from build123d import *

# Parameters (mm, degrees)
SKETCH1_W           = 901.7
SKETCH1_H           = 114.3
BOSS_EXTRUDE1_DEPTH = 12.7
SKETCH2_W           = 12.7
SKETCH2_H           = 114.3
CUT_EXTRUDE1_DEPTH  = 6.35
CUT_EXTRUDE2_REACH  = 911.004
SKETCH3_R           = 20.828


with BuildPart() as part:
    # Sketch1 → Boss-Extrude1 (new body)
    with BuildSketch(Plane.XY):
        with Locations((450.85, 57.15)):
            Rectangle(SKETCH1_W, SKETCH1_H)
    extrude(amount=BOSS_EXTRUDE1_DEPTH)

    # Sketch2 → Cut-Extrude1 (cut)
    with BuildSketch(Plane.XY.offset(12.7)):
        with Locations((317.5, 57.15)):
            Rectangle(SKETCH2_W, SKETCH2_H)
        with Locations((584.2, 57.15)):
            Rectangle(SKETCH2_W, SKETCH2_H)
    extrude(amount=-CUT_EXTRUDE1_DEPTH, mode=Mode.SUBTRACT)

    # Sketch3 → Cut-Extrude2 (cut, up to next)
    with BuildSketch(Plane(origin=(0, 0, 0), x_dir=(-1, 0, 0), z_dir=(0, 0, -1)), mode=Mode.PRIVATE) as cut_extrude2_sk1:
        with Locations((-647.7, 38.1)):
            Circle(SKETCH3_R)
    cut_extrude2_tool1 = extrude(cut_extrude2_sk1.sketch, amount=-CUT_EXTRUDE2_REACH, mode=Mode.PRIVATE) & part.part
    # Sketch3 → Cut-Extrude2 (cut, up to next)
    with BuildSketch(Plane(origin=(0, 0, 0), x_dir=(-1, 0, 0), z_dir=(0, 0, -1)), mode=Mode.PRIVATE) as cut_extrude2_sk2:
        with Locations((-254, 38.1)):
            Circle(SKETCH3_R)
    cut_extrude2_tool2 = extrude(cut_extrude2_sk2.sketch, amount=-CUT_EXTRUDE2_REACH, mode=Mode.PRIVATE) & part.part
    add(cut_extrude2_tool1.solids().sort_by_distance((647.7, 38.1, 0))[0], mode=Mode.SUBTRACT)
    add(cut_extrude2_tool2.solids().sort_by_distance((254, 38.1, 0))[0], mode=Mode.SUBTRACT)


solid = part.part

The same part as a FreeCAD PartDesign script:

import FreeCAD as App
import Part
import Sketcher

V = App.Vector
Q = App.Units.Quantity

doc = App.newDocument("Part")
params = doc.addObject("Spreadsheet::Sheet", "Params")
for row, (alias, value) in enumerate([
    ("sketch1_width", "35.5 in"),
    ("sketch1_height", "4.5 in"),
    ("pad1_length", "0.5 in"),
    ("sketch2_width", "0.5 in"),
    ("sketch2_height", "4.5 in"),
    ("pocket1_length", "0.25 in"),
    ("sketch3_diameter", "1.64 in"),
    ("sketch4_diameter", "1.64 in"),
], start=1):
    params.set(f"A{row}", alias)
    params.set(f"B{row}", "=" + value)
    params.setAlias(f"B{row}", alias)

body = doc.addObject("PartDesign::Body", "Body")

# Sketch on XY plane
sketch1 = body.newObject("Sketcher::SketchObject", "Sketch")
sketch1.AttachmentSupport = (doc.getObject("XY_Plane"), [""])
sketch1.MapMode = "FlatFace"
sketch1.addGeometry([
    Part.LineSegment(V(0, 114.3, 0), V(0, 0, 0)),
    Part.LineSegment(V(0, 0, 0), V(901.7, 0, 0)),
    Part.LineSegment(V(901.7, 0, 0), V(901.7, 114.3, 0)),
    Part.LineSegment(V(901.7, 114.3, 0), V(0, 114.3, 0)),
], False)
sketch1.addConstraint([
    Sketcher.Constraint("Coincident", 0, 2, 1, 1),
    Sketcher.Constraint("Coincident", 1, 2, 2, 1),
    Sketcher.Constraint("Coincident", 2, 2, 3, 1),
    Sketcher.Constraint("Coincident", 3, 2, 0, 1),
    Sketcher.Constraint("Vertical", 0),
    Sketcher.Constraint("Horizontal", 1),
    Sketcher.Constraint("Vertical", 2),
    Sketcher.Constraint("Horizontal", 3),
    Sketcher.Constraint("Coincident", 0, 2, -1, 1),
    Sketcher.Constraint("DistanceX", 1, 1, 1, 2, Q("35.5 in")),
    Sketcher.Constraint("DistanceY", 0, 2, 0, 1, Q("4.5 in")),
])
sketch1.setExpression("Constraints[9]", "Params.sketch1_width")
sketch1.setExpression("Constraints[10]", "Params.sketch1_height")
pad1 = body.newObject("PartDesign::Pad", "Pad")
pad1.Profile = sketch1
pad1.setExpression("Length", "Params.pad1_length")

# Sketch on XY plane
sketch2 = body.newObject("Sketcher::SketchObject", "Sketch001")
sketch2.AttachmentSupport = (doc.getObject("XY_Plane"), [""])
sketch2.MapMode = "FlatFace"
sketch2.AttachmentOffset = App.Placement(V(0, 0, 0.5 * 25.4), App.Rotation())
sketch2.addGeometry([
    Part.LineSegment(V(311.15, 114.3, 0), V(311.15, 0, 0)),  # 0
    Part.LineSegment(V(311.15, 0, 0), V(323.85, 0, 0)),  # 1
    Part.LineSegment(V(323.85, 0, 0), V(323.85, 114.3, 0)),  # 2
    Part.LineSegment(V(323.85, 114.3, 0), V(311.15, 114.3, 0)),  # 3
    Part.LineSegment(V(577.85, 114.3, 0), V(577.85, 0, 0)),  # 4
    Part.LineSegment(V(577.85, 0, 0), V(590.55, 0, 0)),  # 5
    Part.LineSegment(V(590.55, 0, 0), V(590.55, 114.3, 0)),  # 6
    Part.LineSegment(V(590.55, 114.3, 0), V(577.85, 114.3, 0)),  # 7
], False)
sketch2.addConstraint([
    Sketcher.Constraint("Coincident", 0, 2, 1, 1),
    Sketcher.Constraint("Coincident", 1, 2, 2, 1),
    Sketcher.Constraint("Coincident", 2, 2, 3, 1),
    Sketcher.Constraint("Coincident", 3, 2, 0, 1),
    Sketcher.Constraint("Coincident", 4, 2, 5, 1),
    Sketcher.Constraint("Coincident", 5, 2, 6, 1),
    Sketcher.Constraint("Coincident", 6, 2, 7, 1),
    Sketcher.Constraint("Coincident", 7, 2, 4, 1),
    Sketcher.Constraint("Vertical", 0),
    Sketcher.Constraint("Horizontal", 1),
    Sketcher.Constraint("Vertical", 2),
    Sketcher.Constraint("Horizontal", 3),
    Sketcher.Constraint("Vertical", 4),
    Sketcher.Constraint("Horizontal", 5),
    Sketcher.Constraint("Vertical", 6),
    Sketcher.Constraint("Horizontal", 7),
    Sketcher.Constraint("PointOnObject", 0, 2, -1),
    Sketcher.Constraint("PointOnObject", 4, 2, -1),
    Sketcher.Constraint("Horizontal", 3, 2, 6, 2),
    Sketcher.Constraint("Equal", 3, 5),
    Sketcher.Constraint("DistanceX", 1, 1, 1, 2, Q("0.5 in")),
    Sketcher.Constraint("DistanceY", 0, 2, 0, 1, Q("4.5 in")),
    Sketcher.Constraint("DistanceX", 1, 2, 4, 2, Q("10 in")),
    Sketcher.Constraint("DistanceX", -1, 1, 0, 2, Q("12.25 in")),
])
sketch2.setExpression("Constraints[20]", "Params.sketch2_width")
sketch2.setExpression("Constraints[21]", "Params.sketch2_height")
pocket1 = body.newObject("PartDesign::Pocket", "Pocket")
pocket1.Profile = sketch2
pocket1.setExpression("Length", "Params.pocket1_length")

# Sketch on XY plane
sketch3 = body.newObject("Sketcher::SketchObject", "Sketch002")
sketch3.AttachmentSupport = (doc.getObject("XY_Plane"), [""])
sketch3.MapMode = "FlatFace"
sketch3.addGeometry(Part.Circle(V(647.7, 38.1, 0), V(0, 0, 1), 20.828), False)
sketch3.addConstraint([
    Sketcher.Constraint("Diameter", 0, Q("1.64 in")),
    Sketcher.Constraint("DistanceX", -1, 1, 0, 3, Q("25.5 in")),
    Sketcher.Constraint("DistanceY", -1, 1, 0, 3, Q("1.5 in")),
])
sketch3.setExpression("Constraints[0]", "Params.sketch3_diameter")
pocket2 = body.newObject("PartDesign::Pocket", "Pocket001")
pocket2.Profile = sketch3
pocket2.Type = "UpToFirst"
pocket2.Reversed = True

# Sketch on XY plane
sketch4 = body.newObject("Sketcher::SketchObject", "Sketch003")
sketch4.AttachmentSupport = (doc.getObject("XY_Plane"), [""])
sketch4.MapMode = "FlatFace"
sketch4.addGeometry(Part.Circle(V(254, 38.1, 0), V(0, 0, 1), 20.828), False)
sketch4.addConstraint([
    Sketcher.Constraint("Diameter", 0, Q("1.64 in")),
    Sketcher.Constraint("DistanceX", -1, 1, 0, 3, Q("10 in")),
    Sketcher.Constraint("DistanceY", -1, 1, 0, 3, Q("1.5 in")),
])
sketch4.setExpression("Constraints[0]", "Params.sketch4_diameter")
pocket3 = body.newObject("PartDesign::Pocket", "Pocket002")
pocket3.Profile = sketch4
pocket3.Type = "UpToFirst"
pocket3.Reversed = True

doc.recompute()
